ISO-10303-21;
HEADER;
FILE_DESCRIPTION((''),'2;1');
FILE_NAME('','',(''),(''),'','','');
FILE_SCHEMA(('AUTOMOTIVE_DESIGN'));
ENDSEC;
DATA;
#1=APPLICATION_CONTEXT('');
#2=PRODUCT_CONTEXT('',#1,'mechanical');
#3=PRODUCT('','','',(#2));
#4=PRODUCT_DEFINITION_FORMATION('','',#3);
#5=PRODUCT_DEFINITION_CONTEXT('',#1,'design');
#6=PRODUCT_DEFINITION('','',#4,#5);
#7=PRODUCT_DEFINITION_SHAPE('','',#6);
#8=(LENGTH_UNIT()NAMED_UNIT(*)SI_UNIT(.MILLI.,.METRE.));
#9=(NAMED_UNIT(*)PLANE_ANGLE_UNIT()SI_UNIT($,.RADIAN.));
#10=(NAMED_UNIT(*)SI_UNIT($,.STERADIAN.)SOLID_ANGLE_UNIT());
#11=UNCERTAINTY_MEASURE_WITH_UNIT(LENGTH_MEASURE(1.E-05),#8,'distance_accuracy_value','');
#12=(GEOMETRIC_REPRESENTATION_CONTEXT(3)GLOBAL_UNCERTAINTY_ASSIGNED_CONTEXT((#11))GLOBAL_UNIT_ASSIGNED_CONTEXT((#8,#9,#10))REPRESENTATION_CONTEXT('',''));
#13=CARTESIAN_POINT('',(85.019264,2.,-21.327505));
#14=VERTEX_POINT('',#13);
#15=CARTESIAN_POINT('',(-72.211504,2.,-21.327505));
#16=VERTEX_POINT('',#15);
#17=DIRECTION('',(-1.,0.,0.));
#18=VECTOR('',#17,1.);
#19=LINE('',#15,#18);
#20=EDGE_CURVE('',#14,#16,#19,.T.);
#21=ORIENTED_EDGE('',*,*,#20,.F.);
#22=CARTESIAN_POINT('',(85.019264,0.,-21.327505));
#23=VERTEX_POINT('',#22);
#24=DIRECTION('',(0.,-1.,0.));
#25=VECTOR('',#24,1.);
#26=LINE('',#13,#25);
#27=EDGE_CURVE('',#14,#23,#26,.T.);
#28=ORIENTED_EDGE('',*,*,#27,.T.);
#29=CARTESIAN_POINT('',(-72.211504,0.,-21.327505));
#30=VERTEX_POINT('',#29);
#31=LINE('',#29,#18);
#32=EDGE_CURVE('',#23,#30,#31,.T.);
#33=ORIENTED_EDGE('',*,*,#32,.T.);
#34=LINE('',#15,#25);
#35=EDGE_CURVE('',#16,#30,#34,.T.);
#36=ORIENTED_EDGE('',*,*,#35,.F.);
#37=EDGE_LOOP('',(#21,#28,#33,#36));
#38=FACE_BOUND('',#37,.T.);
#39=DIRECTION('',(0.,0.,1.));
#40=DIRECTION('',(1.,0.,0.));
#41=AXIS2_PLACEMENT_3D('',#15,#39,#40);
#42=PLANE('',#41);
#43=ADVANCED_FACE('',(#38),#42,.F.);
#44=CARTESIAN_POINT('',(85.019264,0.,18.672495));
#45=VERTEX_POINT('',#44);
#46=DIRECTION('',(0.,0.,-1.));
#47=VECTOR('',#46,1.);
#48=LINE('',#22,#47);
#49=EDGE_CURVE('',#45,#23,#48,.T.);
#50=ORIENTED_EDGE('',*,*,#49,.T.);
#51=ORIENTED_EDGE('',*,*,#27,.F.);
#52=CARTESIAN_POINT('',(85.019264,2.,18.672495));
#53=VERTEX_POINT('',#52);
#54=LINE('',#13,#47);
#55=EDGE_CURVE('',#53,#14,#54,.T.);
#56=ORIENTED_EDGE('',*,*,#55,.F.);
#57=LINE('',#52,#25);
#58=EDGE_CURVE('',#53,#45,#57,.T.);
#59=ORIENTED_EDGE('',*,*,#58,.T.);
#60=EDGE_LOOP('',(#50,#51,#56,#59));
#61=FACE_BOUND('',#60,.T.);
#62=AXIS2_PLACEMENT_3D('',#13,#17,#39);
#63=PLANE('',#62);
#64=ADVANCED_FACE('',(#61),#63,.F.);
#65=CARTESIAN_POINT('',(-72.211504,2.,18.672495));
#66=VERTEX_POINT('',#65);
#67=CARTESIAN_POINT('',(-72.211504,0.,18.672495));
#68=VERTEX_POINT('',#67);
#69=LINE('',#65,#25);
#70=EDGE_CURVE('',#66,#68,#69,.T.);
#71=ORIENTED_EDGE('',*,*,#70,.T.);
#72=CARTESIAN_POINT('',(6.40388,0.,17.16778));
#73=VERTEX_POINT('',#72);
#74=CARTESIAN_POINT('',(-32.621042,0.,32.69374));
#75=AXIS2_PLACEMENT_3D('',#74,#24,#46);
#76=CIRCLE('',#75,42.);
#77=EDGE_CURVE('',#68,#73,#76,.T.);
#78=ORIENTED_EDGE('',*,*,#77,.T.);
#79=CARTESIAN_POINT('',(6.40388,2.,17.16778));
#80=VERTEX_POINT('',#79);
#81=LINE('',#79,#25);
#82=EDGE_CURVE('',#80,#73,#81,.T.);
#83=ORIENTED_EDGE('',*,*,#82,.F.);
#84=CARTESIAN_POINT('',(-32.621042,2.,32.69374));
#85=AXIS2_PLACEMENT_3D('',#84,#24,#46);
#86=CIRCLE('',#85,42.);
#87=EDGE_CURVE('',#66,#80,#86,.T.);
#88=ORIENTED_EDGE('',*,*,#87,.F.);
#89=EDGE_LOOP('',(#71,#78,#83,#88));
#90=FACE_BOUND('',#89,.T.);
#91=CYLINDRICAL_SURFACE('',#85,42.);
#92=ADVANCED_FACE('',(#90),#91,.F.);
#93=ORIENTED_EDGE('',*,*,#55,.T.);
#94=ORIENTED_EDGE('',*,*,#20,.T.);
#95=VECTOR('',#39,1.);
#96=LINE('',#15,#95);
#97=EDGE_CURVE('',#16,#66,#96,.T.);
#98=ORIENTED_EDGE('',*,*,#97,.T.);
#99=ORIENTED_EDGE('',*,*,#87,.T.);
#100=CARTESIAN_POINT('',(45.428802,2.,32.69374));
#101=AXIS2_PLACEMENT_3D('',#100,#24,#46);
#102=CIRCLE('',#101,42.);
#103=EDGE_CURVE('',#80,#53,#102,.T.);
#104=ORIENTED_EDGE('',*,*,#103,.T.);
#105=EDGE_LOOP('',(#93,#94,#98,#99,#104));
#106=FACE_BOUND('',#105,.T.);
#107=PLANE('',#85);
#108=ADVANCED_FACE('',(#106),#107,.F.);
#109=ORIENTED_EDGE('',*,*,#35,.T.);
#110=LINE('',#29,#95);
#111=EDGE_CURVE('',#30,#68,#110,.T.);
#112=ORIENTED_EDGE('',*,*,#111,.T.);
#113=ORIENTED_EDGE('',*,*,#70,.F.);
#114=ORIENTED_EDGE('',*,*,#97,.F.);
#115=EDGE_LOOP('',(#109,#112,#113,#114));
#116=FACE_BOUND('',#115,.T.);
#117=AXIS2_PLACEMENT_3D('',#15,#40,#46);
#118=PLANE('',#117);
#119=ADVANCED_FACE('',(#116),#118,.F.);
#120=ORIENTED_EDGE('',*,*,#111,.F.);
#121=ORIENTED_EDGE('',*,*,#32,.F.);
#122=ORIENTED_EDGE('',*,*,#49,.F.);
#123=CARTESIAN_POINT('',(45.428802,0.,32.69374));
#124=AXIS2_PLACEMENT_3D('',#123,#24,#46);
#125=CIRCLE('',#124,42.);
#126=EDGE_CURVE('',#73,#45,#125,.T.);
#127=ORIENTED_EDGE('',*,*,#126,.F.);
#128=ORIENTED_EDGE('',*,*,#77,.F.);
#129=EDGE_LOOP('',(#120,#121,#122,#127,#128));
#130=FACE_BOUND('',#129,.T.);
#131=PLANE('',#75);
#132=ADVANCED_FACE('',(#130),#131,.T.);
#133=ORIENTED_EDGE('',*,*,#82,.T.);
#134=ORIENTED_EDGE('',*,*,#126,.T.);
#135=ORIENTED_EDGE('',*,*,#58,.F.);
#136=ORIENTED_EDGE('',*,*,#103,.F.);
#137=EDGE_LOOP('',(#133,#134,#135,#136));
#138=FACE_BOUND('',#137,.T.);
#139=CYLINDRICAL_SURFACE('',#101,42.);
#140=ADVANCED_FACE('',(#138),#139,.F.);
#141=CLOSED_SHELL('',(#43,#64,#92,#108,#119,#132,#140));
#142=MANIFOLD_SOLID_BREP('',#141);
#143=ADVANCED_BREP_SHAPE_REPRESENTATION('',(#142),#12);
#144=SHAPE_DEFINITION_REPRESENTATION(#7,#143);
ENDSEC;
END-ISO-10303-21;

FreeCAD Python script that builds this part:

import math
import FreeCAD as App
import Part
import Sketcher
from FreeCAD import Vector

doc = App.newDocument("Part")
params = doc.addObject("Spreadsheet::Sheet", "Params")
for row, (alias, value) in enumerate([
    ("sketch1_radius", "42 mm"),
    ("sketch1_height", "40 mm"),
    ("pad1_length", "2 mm"),
], start=1):
    params.set(f"A{row}", alias)
    params.set(f"B{row}", "=" + value)
    params.setAlias(f"B{row}", alias)

body = doc.addObject("PartDesign::Body", "Body")

# Sketch on XZ plane
sketch1 = doc.addObject("Sketcher::SketchObject", "Sketch")
body.addObject(sketch1)
sketch1.AttachmentSupport = (doc.XZ_Plane, [""])
sketch1.MapMode = "FlatFace"
sketch1.addGeometry(Part.LineSegment(Vector(85.019264, -21.327505, 0), Vector(-72.211504, -21.327505, 0)), False)
sketch1.addGeometry(Part.LineSegment(Vector(-72.211504, -21.327505, 0), Vector(-72.211504, 18.672495, 0)), False)
sketch1.addGeometry(Part.ArcOfCircle(Part.Circle(Vector(-32.621042, 32.69374, 0), Vector(0, 0, 1), 42), math.radians(-160.498035), math.radians(-21.695004)), False)
sketch1.addGeometry(Part.ArcOfCircle(Part.Circle(Vector(45.428802, 32.69374, 0), Vector(0, 0, 1), 42), math.radians(-158.304996), math.radians(-19.501965)), False)
sketch1.addGeometry(Part.LineSegment(Vector(85.019264, 18.672495, 0), Vector(85.019264, -21.327505, 0)), False)
sketch1.addConstraint(Sketcher.Constraint("Coincident", 0, 2, 1, 1))
sketch1.addConstraint(Sketcher.Constraint("Coincident", 1, 2, 2, 1))
sketch1.addConstraint(Sketcher.Constraint("Coincident", 2, 2, 3, 1))
sketch1.addConstraint(Sketcher.Constraint("Coincident", 3, 2, 4, 1))
sketch1.addConstraint(Sketcher.Constraint("Coincident", 4, 2, 0, 1))
sketch1.addConstraint(Sketcher.Constraint("Horizontal", 0))
sketch1.addConstraint(Sketcher.Constraint("Vertical", 1))
sketch1.addConstraint(Sketcher.Constraint("Vertical", 4))
sketch1.addConstraint(Sketcher.Constraint("Equal", 2, 3))
sketch1.addConstraint(Sketcher.Constraint("Horizontal", 2, 3, 3, 3))
sketch1.addConstraint(Sketcher.Constraint("Horizontal", 1, 2, 3, 2))
sketch1.addConstraint(Sketcher.Constraint("Radius", 2, 42.0))
sketch1.addConstraint(Sketcher.Constraint("DistanceY", 1, 1, 1, 2, 40.0))
sketch1.addConstraint(Sketcher.Constraint("DistanceX", 0, 2, 0, 1, 157.230768))
sketch1.addConstraint(Sketcher.Constraint("DistanceX", 2, 3, -1, 1, 32.621042))
sketch1.addConstraint(Sketcher.Constraint("DistanceY", -1, 1, 2, 3, 32.69374))
sketch1.addConstraint(Sketcher.Constraint("DistanceX", -1, 1, 2, 2, 6.40388))
sketch1.setExpression("Constraints[11]", "Params.sketch1_radius")
sketch1.setExpression("Constraints[12]", "Params.sketch1_height")
pad1 = doc.addObject("PartDesign::Pad", "Pad")
body.addObject(pad1)
pad1.Profile = sketch1
pad1.setExpression("Length", "Params.pad1_length")
pad1.Reversed = True

doc.recompute()
